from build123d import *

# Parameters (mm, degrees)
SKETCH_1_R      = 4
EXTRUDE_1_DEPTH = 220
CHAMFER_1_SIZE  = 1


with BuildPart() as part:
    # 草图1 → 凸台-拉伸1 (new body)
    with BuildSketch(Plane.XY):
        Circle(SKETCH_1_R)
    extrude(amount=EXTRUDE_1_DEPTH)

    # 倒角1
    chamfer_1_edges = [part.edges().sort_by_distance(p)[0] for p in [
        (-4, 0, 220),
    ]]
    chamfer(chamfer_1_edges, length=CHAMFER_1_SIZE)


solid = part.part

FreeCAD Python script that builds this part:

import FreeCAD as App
import Part
import Sketcher

V = App.Vector


def edges_at(feature, points):
    """Names of the edges that pass closest to the given points."""
    edges = feature.Shape.Edges
    near = lambda p: min(range(len(edges)), key=lambda i: edges[i].distToShape(Part.Vertex(*p))[0])
    return sorted({f"Edge{near(p) + 1}" for p in points})

doc = App.newDocument("Part")
body = doc.addObject("PartDesign::Body", "Body")

# Sketch on XY plane
sketch1 = doc.addObject("Sketcher::SketchObject", "Sketch")
body.addObject(sketch1)
sketch1.AttachmentSupport = (doc.XY_Plane, [""])
sketch1.MapMode = "FlatFace"
sketch1.addGeometry(Part.Circle(V(0, 0, 0), V(0, 0, 1), 4), False)
sketch1.addConstraint([
    Sketcher.Constraint("Coincident", 0, 3, -1, 1),
    Sketcher.Constraint("Diameter", 0, 8.0),
])
pad1 = doc.addObject("PartDesign::Pad", "Pad")
body.addObject(pad1)
pad1.Profile = sketch1
pad1.Length = 220
doc.recompute()

chamfer = doc.addObject("PartDesign::Chamfer", "Chamfer")
body.addObject(chamfer)
chamfer.Base = (pad1, edges_at(pad1, [(-4, 0, 220)]))
chamfer.Size = 1

doc.recompute()
